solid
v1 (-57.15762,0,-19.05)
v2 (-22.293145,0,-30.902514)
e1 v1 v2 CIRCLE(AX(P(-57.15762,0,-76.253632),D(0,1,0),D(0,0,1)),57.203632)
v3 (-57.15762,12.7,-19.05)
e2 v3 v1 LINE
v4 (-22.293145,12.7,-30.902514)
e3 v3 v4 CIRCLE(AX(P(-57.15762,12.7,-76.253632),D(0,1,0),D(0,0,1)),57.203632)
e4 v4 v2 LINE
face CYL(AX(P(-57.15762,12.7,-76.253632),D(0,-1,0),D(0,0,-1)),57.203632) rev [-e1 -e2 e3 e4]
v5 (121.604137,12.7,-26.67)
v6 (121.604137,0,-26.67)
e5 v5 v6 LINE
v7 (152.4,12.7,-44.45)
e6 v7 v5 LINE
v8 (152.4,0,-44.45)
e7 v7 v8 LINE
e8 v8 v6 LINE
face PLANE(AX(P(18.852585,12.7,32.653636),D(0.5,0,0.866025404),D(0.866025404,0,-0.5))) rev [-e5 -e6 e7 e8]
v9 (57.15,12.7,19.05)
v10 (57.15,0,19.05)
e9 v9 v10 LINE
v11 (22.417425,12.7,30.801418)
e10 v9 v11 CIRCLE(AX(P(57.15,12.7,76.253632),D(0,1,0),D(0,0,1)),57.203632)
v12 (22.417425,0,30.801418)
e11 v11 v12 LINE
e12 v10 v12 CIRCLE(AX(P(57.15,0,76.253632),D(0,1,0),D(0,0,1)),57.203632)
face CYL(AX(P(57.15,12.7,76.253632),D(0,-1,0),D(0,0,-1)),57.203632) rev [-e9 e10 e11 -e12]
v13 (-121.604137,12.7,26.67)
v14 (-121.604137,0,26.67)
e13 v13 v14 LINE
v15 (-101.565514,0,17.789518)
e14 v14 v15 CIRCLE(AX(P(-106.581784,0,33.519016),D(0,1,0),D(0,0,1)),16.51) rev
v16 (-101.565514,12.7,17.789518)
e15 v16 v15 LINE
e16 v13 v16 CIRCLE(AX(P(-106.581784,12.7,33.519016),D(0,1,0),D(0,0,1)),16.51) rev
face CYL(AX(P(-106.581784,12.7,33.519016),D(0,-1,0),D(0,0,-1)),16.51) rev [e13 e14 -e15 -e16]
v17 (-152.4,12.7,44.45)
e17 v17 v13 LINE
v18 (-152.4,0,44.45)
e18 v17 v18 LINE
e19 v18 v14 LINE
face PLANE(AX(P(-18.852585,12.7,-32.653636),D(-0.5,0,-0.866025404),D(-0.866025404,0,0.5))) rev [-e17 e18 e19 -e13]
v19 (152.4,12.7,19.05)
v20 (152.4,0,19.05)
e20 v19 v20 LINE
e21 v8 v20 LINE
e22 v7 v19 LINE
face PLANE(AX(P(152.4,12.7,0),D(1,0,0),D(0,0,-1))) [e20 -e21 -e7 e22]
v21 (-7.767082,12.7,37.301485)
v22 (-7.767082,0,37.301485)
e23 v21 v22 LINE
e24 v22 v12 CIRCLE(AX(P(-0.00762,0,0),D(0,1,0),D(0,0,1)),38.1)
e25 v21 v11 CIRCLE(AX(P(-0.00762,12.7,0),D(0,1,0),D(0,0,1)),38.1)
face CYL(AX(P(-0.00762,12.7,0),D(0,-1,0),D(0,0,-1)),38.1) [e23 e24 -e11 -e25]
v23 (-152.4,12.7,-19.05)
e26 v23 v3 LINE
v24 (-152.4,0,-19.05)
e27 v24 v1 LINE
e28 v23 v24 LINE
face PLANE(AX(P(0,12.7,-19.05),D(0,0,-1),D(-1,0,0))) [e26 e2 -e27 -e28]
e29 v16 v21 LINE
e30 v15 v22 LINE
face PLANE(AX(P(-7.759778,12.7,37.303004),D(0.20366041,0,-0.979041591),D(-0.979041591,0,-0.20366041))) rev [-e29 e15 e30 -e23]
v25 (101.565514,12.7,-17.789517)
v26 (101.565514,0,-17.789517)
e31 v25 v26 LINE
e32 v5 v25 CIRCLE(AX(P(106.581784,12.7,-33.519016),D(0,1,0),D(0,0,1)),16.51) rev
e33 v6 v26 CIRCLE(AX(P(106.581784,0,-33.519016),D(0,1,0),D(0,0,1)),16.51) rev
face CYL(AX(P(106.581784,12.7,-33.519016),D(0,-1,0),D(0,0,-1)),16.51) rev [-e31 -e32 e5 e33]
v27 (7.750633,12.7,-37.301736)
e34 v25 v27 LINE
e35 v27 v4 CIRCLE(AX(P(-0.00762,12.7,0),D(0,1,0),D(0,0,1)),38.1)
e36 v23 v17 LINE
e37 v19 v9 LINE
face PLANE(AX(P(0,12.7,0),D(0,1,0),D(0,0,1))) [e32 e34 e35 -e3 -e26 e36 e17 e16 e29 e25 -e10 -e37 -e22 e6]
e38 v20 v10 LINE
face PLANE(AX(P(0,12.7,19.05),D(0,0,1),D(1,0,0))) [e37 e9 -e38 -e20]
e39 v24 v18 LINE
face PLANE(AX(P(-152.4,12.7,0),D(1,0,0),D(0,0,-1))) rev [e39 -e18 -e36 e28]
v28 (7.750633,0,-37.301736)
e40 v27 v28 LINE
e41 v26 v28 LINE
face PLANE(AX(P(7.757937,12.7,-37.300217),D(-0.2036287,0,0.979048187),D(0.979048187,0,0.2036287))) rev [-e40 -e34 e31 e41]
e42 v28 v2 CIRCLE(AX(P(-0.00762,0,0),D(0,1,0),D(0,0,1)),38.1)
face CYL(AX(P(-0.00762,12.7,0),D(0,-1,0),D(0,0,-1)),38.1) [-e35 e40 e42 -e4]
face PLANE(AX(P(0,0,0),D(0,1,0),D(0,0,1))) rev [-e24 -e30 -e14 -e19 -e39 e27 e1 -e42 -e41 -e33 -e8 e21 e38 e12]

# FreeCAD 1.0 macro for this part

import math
import FreeCAD as App
import Part
import Sketcher
from FreeCAD import Vector
Q = App.Units.Quantity

doc = App.newDocument("Part")
body = doc.addObject("PartDesign::Body", "Body")

# Sketch on XZ plane
sketch1 = body.newObject("Sketcher::SketchObject", "Sketch")
sketch1.AttachmentSupport = (doc.getObject("XZ_Plane"), [""])
sketch1.MapMode = "FlatFace"
sketch1.addGeometry([
    Part.LineSegment(Vector(-57, -19, 0), Vector(-152, -19, 0)),  # 0
    Part.LineSegment(Vector(-152, -19, 0), Vector(-152, 44, 0)),  # 1
    Part.LineSegment(Vector(-152, 44, 0), Vector(-122, 27, 0)),  # 2
    Part.ArcOfCircle(Part.Circle(Vector(-107, 34, 0), Vector(0, 0, 1), 17), math.radians(-155), math.radians(-72)),  # 3
    Part.LineSegment(Vector(-102, 18, 0), Vector(-8, 37, 0)),  # 4
    Part.ArcOfCircle(Part.Circle(Vector(0, 0, 0), Vector(0, 0, 1), 38), math.radians(52), math.radians(102)),  # 5
    Part.ArcOfCircle(Part.Circle(Vector(57, 76, 0), Vector(0, 0, 1), 57), math.radians(-126), math.radians(-90)),  # 6
    Part.LineSegment(Vector(57, 19, 0), Vector(152, 19, 0)),  # 7
    Part.LineSegment(Vector(152, 19, 0), Vector(152, -44, 0)),  # 8
    Part.LineSegment(Vector(152, -44, 0), Vector(122, -27, 0)),  # 9
    Part.ArcOfCircle(Part.Circle(Vector(107, -34, 0), Vector(0, 0, 1), 17), math.radians(25), math.radians(108)),  # 10
    Part.LineSegment(Vector(102, -18, 0), Vector(8, -37, 0)),  # 11
    Part.ArcOfCircle(Part.Circle(Vector(0, 0, 0), Vector(0, 0, 1), 38), math.radians(-128), math.radians(-78)),  # 12
    Part.ArcOfCircle(Part.Circle(Vector(-57, -76, 0), Vector(0, 0, 1), 57), math.radians(54), math.radians(90)),  # 13
], False)
sketch1.addConstraint([
    Sketcher.Constraint("Coincident", 0, 2, 1, 1),
    Sketcher.Constraint("Coincident", 1, 2, 2, 1),
    Sketcher.Constraint("Coincident", 2, 2, 3, 1),
    Sketcher.Constraint("Coincident", 3, 2, 4, 1),
    Sketcher.Constraint("Tangent", 4, 2, 5, 2),
    Sketcher.Constraint("Coincident", 5, 1, 6, 1),
    Sketcher.Constraint("Tangent", 6, 2, 7, 1),
    Sketcher.Constraint("Coincident", 7, 2, 8, 1),
    Sketcher.Constraint("Coincident", 8, 2, 9, 1),
    Sketcher.Constraint("Coincident", 9, 2, 10, 1),
    Sketcher.Constraint("Coincident", 10, 2, 11, 1),
    Sketcher.Constraint("Tangent", 11, 2, 12, 2),
    Sketcher.Constraint("Coincident", 12, 1, 13, 1),
    Sketcher.Constraint("Tangent", 13, 2, 0, 1),
    Sketcher.Constraint("Horizontal", 0),
    Sketcher.Constraint("Vertical", 1),
    Sketcher.Constraint("Horizontal", 7),
    Sketcher.Constraint("Vertical", 8),
    Sketcher.Constraint("Coincident", 12, 3, 5, 3),
    Sketcher.Constraint("Equal", 3, 10),
    Sketcher.Constraint("Equal", 5, 12),
    Sketcher.Constraint("Equal", 6, 13),
    Sketcher.Constraint("Symmetric", 3, 3, 10, 3, -1, 1),
    Sketcher.Constraint("Symmetric", 0, 2, 7, 2, -1, 1),
    Sketcher.Constraint("PointOnObject", 5, 3, -1),
    Sketcher.Constraint("Parallel", 2, 9),
    Sketcher.Constraint("Equal", 1, 8),
    Sketcher.Constraint("Radius", 5, Q("1.5 in")),
    Sketcher.Constraint("Radius", 3, Q("0.65 in")),
    Sketcher.Constraint("DistanceY", 1, 1, 1, 2, Q("2.5 in")),
    Sketcher.Constraint("DistanceX", 0, 2, -1, 1, Q("6 in")),
    Sketcher.Constraint("Angle", 2, Q("-30 deg")),
    Sketcher.Constraint("Distance", 2, Q("1.4 in")),
    Sketcher.Constraint("DistanceX", 7, 1, 7, 2, Q("3.75 in")),
    Sketcher.Constraint("DistanceY", 0, 2, -1, 1, Q("0.75 in")),
    Sketcher.Constraint("DistanceX", 13, 3, 5, 3, Q("2.25 in")),
    Sketcher.Constraint("DistanceX", 0, 2, 0, 1, Q("3.7497 in")),
    Sketcher.Constraint("Radius", 6, Q("57.203632 mm")),
    Sketcher.Constraint("DistanceY", 3, 2, 3, 3, Q("15.729499 mm")),
    Sketcher.Constraint("DistanceX", 4, 2, 5, 1, Q("31.033301 mm")),
    Sketcher.Constraint("DistanceY", 10, 3, 10, 2, Q("15.729499 mm")),
])
pad1 = body.newObject("PartDesign::Pad", "Pad")
pad1.Profile = sketch1
pad1.Length = Q("0.5 in")
pad1.Reversed = True

doc.recompute()
